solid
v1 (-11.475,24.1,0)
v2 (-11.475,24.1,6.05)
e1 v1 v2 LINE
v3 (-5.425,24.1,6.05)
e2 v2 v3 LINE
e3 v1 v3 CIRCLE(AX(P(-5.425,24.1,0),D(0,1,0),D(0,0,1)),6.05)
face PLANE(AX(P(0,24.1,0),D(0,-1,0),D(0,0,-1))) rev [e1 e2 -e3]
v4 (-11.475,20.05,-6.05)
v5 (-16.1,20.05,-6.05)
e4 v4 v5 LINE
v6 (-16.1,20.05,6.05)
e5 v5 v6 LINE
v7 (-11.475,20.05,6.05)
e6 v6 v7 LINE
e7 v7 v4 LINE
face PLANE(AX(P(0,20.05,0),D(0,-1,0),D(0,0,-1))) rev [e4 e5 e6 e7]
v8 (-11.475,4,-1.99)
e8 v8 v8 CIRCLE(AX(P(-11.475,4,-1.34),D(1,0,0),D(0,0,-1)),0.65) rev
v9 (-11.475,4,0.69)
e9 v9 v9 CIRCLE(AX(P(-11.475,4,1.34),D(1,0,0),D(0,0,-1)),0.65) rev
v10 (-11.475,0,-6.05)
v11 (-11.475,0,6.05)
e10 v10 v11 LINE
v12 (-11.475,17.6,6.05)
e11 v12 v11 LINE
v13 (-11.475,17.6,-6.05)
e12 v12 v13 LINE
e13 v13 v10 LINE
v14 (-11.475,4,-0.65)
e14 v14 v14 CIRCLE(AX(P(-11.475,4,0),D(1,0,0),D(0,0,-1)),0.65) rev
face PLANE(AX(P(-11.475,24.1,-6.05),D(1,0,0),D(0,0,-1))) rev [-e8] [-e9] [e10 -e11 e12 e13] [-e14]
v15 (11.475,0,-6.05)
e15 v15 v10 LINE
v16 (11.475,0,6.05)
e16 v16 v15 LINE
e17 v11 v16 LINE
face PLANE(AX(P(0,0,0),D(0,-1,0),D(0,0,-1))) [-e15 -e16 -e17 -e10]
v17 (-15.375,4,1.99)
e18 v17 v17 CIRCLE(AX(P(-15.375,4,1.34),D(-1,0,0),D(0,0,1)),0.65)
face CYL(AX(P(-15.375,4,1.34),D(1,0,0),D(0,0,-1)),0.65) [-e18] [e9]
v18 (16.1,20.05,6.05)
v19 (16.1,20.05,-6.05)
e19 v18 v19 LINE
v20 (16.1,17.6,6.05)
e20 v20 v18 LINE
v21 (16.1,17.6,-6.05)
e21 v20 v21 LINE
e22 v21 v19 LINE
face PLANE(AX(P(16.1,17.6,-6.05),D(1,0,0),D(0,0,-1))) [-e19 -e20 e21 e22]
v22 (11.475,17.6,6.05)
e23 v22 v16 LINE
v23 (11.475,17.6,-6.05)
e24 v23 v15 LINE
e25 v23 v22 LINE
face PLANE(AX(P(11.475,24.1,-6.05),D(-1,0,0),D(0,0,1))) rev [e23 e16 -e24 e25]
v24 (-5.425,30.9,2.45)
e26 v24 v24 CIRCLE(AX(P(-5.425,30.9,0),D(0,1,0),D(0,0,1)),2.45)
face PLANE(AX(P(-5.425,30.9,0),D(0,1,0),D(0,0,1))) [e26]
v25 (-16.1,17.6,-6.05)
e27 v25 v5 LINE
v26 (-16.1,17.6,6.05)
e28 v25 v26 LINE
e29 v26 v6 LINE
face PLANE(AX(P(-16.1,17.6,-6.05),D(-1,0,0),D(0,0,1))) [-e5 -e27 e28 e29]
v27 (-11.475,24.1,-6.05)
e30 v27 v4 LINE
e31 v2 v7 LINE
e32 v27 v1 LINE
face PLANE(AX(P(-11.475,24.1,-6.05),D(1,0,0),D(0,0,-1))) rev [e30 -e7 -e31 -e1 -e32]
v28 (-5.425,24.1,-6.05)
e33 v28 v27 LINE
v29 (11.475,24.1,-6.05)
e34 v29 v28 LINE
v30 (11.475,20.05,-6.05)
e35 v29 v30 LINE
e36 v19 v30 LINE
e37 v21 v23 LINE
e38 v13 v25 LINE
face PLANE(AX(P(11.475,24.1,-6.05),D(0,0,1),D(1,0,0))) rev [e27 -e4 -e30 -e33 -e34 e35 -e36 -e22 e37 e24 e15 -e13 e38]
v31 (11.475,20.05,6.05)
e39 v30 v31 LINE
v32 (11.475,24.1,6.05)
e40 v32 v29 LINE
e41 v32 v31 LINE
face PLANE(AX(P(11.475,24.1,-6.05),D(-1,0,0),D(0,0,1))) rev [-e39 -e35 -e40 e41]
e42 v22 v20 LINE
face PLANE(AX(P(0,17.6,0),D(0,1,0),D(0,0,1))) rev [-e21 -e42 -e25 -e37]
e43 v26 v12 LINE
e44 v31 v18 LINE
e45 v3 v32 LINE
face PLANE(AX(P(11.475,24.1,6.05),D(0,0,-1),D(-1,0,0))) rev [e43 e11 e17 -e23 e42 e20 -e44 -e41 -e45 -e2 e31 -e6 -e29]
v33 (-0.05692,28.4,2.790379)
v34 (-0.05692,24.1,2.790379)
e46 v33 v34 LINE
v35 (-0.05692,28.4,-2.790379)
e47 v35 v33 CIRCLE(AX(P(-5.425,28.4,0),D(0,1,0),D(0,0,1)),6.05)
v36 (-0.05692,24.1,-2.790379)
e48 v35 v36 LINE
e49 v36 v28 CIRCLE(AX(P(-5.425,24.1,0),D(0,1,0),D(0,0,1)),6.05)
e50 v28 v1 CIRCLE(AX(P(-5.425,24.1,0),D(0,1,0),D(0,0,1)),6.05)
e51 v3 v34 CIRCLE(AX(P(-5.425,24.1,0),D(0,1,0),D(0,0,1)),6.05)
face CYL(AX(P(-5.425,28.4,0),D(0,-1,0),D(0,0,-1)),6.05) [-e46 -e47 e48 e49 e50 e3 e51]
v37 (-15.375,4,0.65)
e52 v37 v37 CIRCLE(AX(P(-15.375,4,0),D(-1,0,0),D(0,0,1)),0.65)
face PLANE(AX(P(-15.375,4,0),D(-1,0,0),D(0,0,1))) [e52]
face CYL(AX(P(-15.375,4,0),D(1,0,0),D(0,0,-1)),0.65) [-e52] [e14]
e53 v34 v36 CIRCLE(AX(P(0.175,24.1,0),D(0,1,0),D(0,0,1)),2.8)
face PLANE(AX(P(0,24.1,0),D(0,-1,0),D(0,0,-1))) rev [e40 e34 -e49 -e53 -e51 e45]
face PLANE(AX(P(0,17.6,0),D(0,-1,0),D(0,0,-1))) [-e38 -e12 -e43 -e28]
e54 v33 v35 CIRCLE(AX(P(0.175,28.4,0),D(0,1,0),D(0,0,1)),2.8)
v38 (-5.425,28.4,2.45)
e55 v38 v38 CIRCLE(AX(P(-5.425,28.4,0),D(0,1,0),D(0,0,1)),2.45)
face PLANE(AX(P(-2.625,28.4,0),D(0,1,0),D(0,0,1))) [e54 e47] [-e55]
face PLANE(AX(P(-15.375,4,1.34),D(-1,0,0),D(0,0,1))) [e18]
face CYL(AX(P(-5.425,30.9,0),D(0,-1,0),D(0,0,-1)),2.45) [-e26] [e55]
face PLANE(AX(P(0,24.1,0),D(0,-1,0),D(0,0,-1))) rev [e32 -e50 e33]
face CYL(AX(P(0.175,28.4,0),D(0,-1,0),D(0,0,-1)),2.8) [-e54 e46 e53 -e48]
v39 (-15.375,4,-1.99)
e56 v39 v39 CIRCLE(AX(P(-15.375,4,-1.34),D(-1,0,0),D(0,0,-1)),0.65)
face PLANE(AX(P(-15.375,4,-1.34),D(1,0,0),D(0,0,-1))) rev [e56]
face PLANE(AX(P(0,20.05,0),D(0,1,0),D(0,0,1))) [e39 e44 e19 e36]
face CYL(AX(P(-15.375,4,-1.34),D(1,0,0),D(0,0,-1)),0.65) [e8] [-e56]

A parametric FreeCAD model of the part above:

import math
import FreeCAD as App
import Part
import Sketcher

V = App.Vector


def add_polygon(sketch, points):
    """Adds a closed chain of lines whose ends are joined by coincident constraints."""
    first, n = sketch.GeometryCount, len(points)
    for a, b in zip(points, points[1:] + points[:1]):
        sketch.addGeometry(Part.LineSegment(App.Vector(*a, 0), App.Vector(*b, 0)), False)
    for i in range(n):
        sketch.addConstraint(Sketcher.Constraint("Coincident", first + i, 2, first + (i + 1) % n, 1))

doc = App.newDocument("Part")
body = doc.addObject("PartDesign::Body", "Body")

# Sketch on XZ plane
sketch1 = body.newObject("Sketcher::SketchObject", "Sketch")
sketch1.AttachmentSupport = (doc.getObject("XZ_Plane"), [""])
sketch1.MapMode = "FlatFace"
add_polygon(sketch1, [(-11.475, -6.05), (-11.475, 6.05), (11.475, 6.05), (11.475, -6.05)])  # lines 0-3
sketch1.addConstraint([
    Sketcher.Constraint("Vertical", 0),
    Sketcher.Constraint("Horizontal", 1),
    Sketcher.Constraint("Vertical", 2),
    Sketcher.Constraint("Horizontal", 3),
    Sketcher.Constraint("Symmetric", 0, 2, 2, 2, -1, 1),
    Sketcher.Constraint("DistanceY", 0, 1, 0, 2, 12.1),
    Sketcher.Constraint("DistanceX", 1, 1, 1, 2, 22.95),
])
pad1 = body.newObject("PartDesign::Pad", "Pad")
pad1.Profile = sketch1
pad1.Length = 24.1
pad1.Reversed = True

# Sketch on XZ plane
sketch2 = body.newObject("Sketcher::SketchObject", "Sketch001")
sketch2.AttachmentSupport = (doc.getObject("XZ_Plane"), [""])
sketch2.MapMode = "FlatFace"
sketch2.AttachmentOffset = App.Placement(V(0, 0, -24.1), App.Rotation())
sketch2.addGeometry([
    Part.ArcOfCircle(Part.Circle(V(-5.425, 0, 0), V(0, 0, 1), 6.05), math.radians(27.465835), math.radians(332.534165)),
    Part.ArcOfCircle(Part.Circle(V(0.175, 0, 0), V(0, 0, 1), 2.8), math.radians(-94.751163), math.radians(94.751163)),
], False)
sketch2.addConstraint([
    Sketcher.Constraint("Coincident", 0, 1, 1, 2),
    Sketcher.Constraint("Coincident", 1, 1, 0, 2),
    Sketcher.Constraint("Symmetric", 0, 1, 1, 1, -1),
    Sketcher.Constraint("Radius", 1, 2.8),
    Sketcher.Constraint("Radius", 0, 6.05),
    Sketcher.Constraint("DistanceX", 0, 3, 1, 3, 5.6),
    Sketcher.Constraint("DistanceX", 0, 3, -1, 1, 5.425),
])
pad2 = body.newObject("PartDesign::Pad", "Pad001")
pad2.Profile = sketch2
pad2.Length = 4.3
pad2.Reversed = True

# Sketch on XZ plane
sketch3 = body.newObject("Sketcher::SketchObject", "Sketch002")
sketch3.AttachmentSupport = (doc.getObject("XZ_Plane"), [""])
sketch3.MapMode = "FlatFace"
sketch3.AttachmentOffset = App.Placement(V(0, 0, -20.05), App.Rotation())
add_polygon(sketch3, [(-16.1, -6.05), (-16.1, 6.05), (-11.475, 6.05), (-11.475, -6.05)])  # lines 0-3
add_polygon(sketch3, [(11.475, -6.05), (11.475, 6.05), (16.1, 6.05), (16.1, -6.05)])  # lines 4-7
sketch3.addConstraint([
    Sketcher.Constraint("Vertical", 0),
    Sketcher.Constraint("Horizontal", 1),
    Sketcher.Constraint("Vertical", 2),
    Sketcher.Constraint("Horizontal", 3),
    Sketcher.Constraint("Vertical", 4),
    Sketcher.Constraint("Horizontal", 5),
    Sketcher.Constraint("Vertical", 6),
    Sketcher.Constraint("Horizontal", 7),
    Sketcher.Constraint("Symmetric", 2, 2, 4, 2, -1, 1),
    Sketcher.Constraint("Symmetric", 0, 2, 6, 2, -1, 1),
    Sketcher.Constraint("Horizontal", 1, 2, 4, 2),
    Sketcher.Constraint("DistanceY", 0, 1, 0, 2, 12.1),
    Sketcher.Constraint("DistanceX", 0, 2, -1, 1, 16.1),
    Sketcher.Constraint("DistanceX", 1, 1, 1, 2, 4.625),
])
pad3 = body.newObject("PartDesign::Pad", "Pad002")
pad3.Profile = sketch3
pad3.Length = 2.45

# Sketch on XZ plane
sketch4 = body.newObject("Sketcher::SketchObject", "Sketch003")
sketch4.AttachmentSupport = (doc.getObject("XZ_Plane"), [""])
sketch4.MapMode = "FlatFace"
sketch4.AttachmentOffset = App.Placement(V(0, 0, -28.4), App.Rotation())
sketch4.addGeometry(Part.Circle(V(-5.425, 0, 0), V(0, 0, 1), 2.45), False)
sketch4.addConstraint([
    Sketcher.Constraint("PointOnObject", 0, 3, -1),
    Sketcher.Constraint("Diameter", 0, 4.9),
    Sketcher.Constraint("DistanceX", 0, 3, -1, 1, 5.425),
])
pad4 = body.newObject("PartDesign::Pad", "Pad003")
pad4.Profile = sketch4
pad4.Length = 2.5
pad4.Reversed = True

# Sketch on YZ plane
sketch5 = body.newObject("Sketcher::SketchObject", "Sketch004")
sketch5.AttachmentSupport = (doc.getObject("YZ_Plane"), [""])
sketch5.MapMode = "FlatFace"
sketch5.AttachmentOffset = App.Placement(V(0, 0, -11.475), App.Rotation())
sketch5.addGeometry([
    Part.Circle(V(4, 0, 0), V(0, 0, 1), 0.65),
    Part.Circle(V(4, 1.34, 0), V(0, 0, 1), 0.65),
    Part.Circle(V(4, -1.34, 0), V(0, 0, 1), 0.65),
], False)
sketch5.addConstraint([
    Sketcher.Constraint("Equal", 0, 1),
    Sketcher.Constraint("Equal", 1, 2),
    Sketcher.Constraint("Symmetric", 1, 3, 2, 3, -1),
    Sketcher.Constraint("PointOnObject", 0, 3, -1),
    Sketcher.Constraint("Vertical", 0, 3, 1, 3),
    Sketcher.Constraint("Diameter", 0, 1.3),
    Sketcher.Constraint("DistanceX", -1, 1, 0, 3, 4.0),
    Sketcher.Constraint("DistanceY", -1, 1, 1, 3, 1.34),
])
pad5 = body.newObject("PartDesign::Pad", "Pad004")
pad5.Profile = sketch5
pad5.Length = 3.9
pad5.Reversed = True

doc.recompute()
